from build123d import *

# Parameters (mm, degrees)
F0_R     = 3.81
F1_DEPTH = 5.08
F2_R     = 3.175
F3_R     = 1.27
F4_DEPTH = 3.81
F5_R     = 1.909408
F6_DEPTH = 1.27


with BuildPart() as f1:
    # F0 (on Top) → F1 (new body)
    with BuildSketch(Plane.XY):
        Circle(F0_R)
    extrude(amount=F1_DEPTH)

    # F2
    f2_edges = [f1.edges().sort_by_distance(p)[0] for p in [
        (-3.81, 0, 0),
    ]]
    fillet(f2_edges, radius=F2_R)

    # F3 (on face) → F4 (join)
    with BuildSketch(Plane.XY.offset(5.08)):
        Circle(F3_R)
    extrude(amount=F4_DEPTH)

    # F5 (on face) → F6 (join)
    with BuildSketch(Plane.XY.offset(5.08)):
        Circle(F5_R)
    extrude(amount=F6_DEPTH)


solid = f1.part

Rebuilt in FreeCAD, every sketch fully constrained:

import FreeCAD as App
import Part
import Sketcher
Q = App.Units.Quantity


def edges_at(feature, points):
    """Names of the edges that pass closest to the given points."""
    edges = feature.Shape.Edges
    near = lambda p: min(range(len(edges)), key=lambda i: edges[i].distToShape(Part.Vertex(*p))[0])
    return sorted({f"Edge{near(p) + 1}" for p in points})

doc = App.newDocument("Part")
body = doc.addObject("PartDesign::Body", "Body")

sketch1 = body.newObject("Sketcher::SketchObject", "Sketch")
sketch1.AttachmentSupport = (doc.getObject("XY_Plane"), [""])
sketch1.MapMode = "FlatFace"
sketch1.addGeometry(Part.Circle(App.Vector(0, 0, 0), App.Vector(0, 0, 1), 3.8), False)
sketch1.addConstraint([
    Sketcher.Constraint("Coincident", 0, 3, -1, 1),
    Sketcher.Constraint("Diameter", 0, Q("0.3 in")),
])
pad1 = body.newObject("PartDesign::Pad", "Pad")
pad1.Profile = sketch1
pad1.Length = Q("0.2 in")
doc.recompute()

fillet = body.newObject("PartDesign::Fillet", "Fillet")
fillet.Base = (pad1, edges_at(pad1, [(-3.81, 0, 0)]))
fillet.Radius = Q("0.125 in")

sketch2 = body.newObject("Sketcher::SketchObject", "Sketch001")
sketch2.AttachmentSupport = (doc.getObject("XY_Plane"), [""])
sketch2.MapMode = "FlatFace"
sketch2.AttachmentOffset = App.Placement(App.Vector(0, 0, 0.2 * 25.4), App.Rotation())
sketch2.addGeometry(Part.Circle(App.Vector(0, 0, 0), App.Vector(0, 0, 1), 1.3), False)
sketch2.addConstraint([
    Sketcher.Constraint("Coincident", 0, 3, -1, 1),
    Sketcher.Constraint("Diameter", 0, Q("0.1 in")),
])
pad2 = body.newObject("PartDesign::Pad", "Pad001")
pad2.Profile = sketch2
pad2.Length = Q("0.15 in")

sketch3 = body.newObject("Sketcher::SketchObject", "Sketch002")
sketch3.AttachmentSupport = (doc.getObject("XY_Plane"), [""])
sketch3.MapMode = "FlatFace"
sketch3.AttachmentOffset = App.Placement(App.Vector(0, 0, 0.2 * 25.4), App.Rotation())
sketch3.addGeometry(Part.Circle(App.Vector(0, 0, 0), App.Vector(0, 0, 1), 1.9), False)
sketch3.addConstraint([
    Sketcher.Constraint("Coincident", 0, 3, -1, 1),
    Sketcher.Constraint("Diameter", 0, 3.818816),
])
pad3 = body.newObject("PartDesign::Pad", "Pad002")
pad3.Profile = sketch3
pad3.Length = Q("0.05 in")

doc.recompute()
